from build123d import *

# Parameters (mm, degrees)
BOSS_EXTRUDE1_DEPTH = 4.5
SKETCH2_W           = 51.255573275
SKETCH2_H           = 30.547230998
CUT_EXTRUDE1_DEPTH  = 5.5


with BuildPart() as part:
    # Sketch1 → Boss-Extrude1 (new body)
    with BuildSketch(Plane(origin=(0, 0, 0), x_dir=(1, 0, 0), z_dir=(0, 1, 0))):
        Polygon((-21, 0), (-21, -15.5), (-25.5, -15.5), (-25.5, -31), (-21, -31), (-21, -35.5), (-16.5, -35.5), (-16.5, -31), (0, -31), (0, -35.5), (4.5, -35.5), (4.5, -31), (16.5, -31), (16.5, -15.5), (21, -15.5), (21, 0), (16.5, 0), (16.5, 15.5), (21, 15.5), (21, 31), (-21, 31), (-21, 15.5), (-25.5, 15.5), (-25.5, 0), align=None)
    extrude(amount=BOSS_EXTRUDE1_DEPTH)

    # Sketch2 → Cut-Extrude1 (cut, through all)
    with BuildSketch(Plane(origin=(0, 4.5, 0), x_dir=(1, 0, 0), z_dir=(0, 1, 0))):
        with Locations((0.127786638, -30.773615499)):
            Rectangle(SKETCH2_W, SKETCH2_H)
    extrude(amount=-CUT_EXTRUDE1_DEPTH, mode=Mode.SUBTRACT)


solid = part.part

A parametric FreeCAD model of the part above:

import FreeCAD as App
import Part
import Sketcher

doc = App.newDocument("Part")
params = doc.addObject("Spreadsheet::Sheet", "Params")
for row, (alias, value) in enumerate([
    ("sketch1_width", "12 mm"),
    ("sketch1_width2", "42 mm"),
    ("sketch1_height", "15.5 mm"),
    ("pad1_length", "4.5 mm"),
], start=1):
    params.set(f"A{row}", alias)
    params.set(f"B{row}", "=" + value)
    params.setAlias(f"B{row}", alias)

body = doc.addObject("PartDesign::Body", "Body")

# Sketch on XZ plane
sketch1 = doc.addObject("Sketcher::SketchObject", "Sketch")
body.addObject(sketch1)
sketch1.AttachmentSupport = (doc.XZ_Plane, [""])
sketch1.MapMode = "FlatFace"
sketch1.addGeometry([
    Part.LineSegment(App.Vector(-21, 0, 0), App.Vector(-21, 15.5, 0)),  # 0
    Part.LineSegment(App.Vector(-21, 15.5, 0), App.Vector(-25.5, 15.5, 0)),  # 1
    Part.LineSegment(App.Vector(-25.5, 15.5, 0), App.Vector(-25.5, 31, 0)),  # 2
    Part.LineSegment(App.Vector(-25.5, 31, 0), App.Vector(-21, 31, 0)),  # 3
    Part.LineSegment(App.Vector(-21, 31, 0), App.Vector(-21, 35.5, 0)),  # 4
    Part.LineSegment(App.Vector(-21, 35.5, 0), App.Vector(-16.5, 35.5, 0)),  # 5
    Part.LineSegment(App.Vector(-16.5, 35.5, 0), App.Vector(-16.5, 31, 0)),  # 6
    Part.LineSegment(App.Vector(-16.5, 31, 0), App.Vector(0, 31, 0)),  # 7
    Part.LineSegment(App.Vector(0, 31, 0), App.Vector(0, 35.5, 0)),  # 8
    Part.LineSegment(App.Vector(0, 35.5, 0), App.Vector(4.5, 35.5, 0)),  # 9
    Part.LineSegment(App.Vector(4.5, 35.5, 0), App.Vector(4.5, 31, 0)),  # 10
    Part.LineSegment(App.Vector(4.5, 31, 0), App.Vector(16.5, 31, 0)),  # 11
    Part.LineSegment(App.Vector(16.5, 31, 0), App.Vector(16.5, 15.5, 0)),  # 12
    Part.LineSegment(App.Vector(16.5, 15.5, 0), App.Vector(21, 15.5, 0)),  # 13
    Part.LineSegment(App.Vector(21, 15.5, 0), App.Vector(21, 0, 0)),  # 14
    Part.LineSegment(App.Vector(21, 0, 0), App.Vector(16.5, 0, 0)),  # 15
    Part.LineSegment(App.Vector(16.5, 0, 0), App.Vector(16.5, -15.5, 0)),  # 16
    Part.LineSegment(App.Vector(16.5, -15.5, 0), App.Vector(21, -15.5, 0)),  # 17
    Part.LineSegment(App.Vector(21, -15.5, 0), App.Vector(21, -31, 0)),  # 18
    Part.LineSegment(App.Vector(21, -31, 0), App.Vector(-21, -31, 0)),  # 19
    Part.LineSegment(App.Vector(-21, -31, 0), App.Vector(-21, -15.5, 0)),  # 20
    Part.LineSegment(App.Vector(-21, -15.5, 0), App.Vector(-25.5, -15.5, 0)),  # 21
    Part.LineSegment(App.Vector(-25.5, -15.5, 0), App.Vector(-25.5, 0, 0)),  # 22
    Part.LineSegment(App.Vector(-25.5, 0, 0), App.Vector(-21, 0, 0)),  # 23
], False)
sketch1.addConstraint([
    Sketcher.Constraint("Coincident", 0, 2, 1, 1),
    Sketcher.Constraint("Coincident", 1, 2, 2, 1),
    Sketcher.Constraint("Coincident", 2, 2, 3, 1),
    Sketcher.Constraint("Coincident", 3, 2, 4, 1),
    Sketcher.Constraint("Coincident", 4, 2, 5, 1),
    Sketcher.Constraint("Coincident", 5, 2, 6, 1),
    Sketcher.Constraint("Coincident", 6, 2, 7, 1),
    Sketcher.Constraint("Coincident", 7, 2, 8, 1),
    Sketcher.Constraint("Coincident", 8, 2, 9, 1),
    Sketcher.Constraint("Coincident", 9, 2, 10, 1),
    Sketcher.Constraint("Coincident", 10, 2, 11, 1),
    Sketcher.Constraint("Coincident", 11, 2, 12, 1),
    Sketcher.Constraint("Coincident", 12, 2, 13, 1),
    Sketcher.Constraint("Coincident", 13, 2, 14, 1),
    Sketcher.Constraint("Coincident", 14, 2, 15, 1),
    Sketcher.Constraint("Coincident", 15, 2, 16, 1),
    Sketcher.Constraint("Coincident", 16, 2, 17, 1),
    Sketcher.Constraint("Coincident", 17, 2, 18, 1),
    Sketcher.Constraint("Coincident", 18, 2, 19, 1),
    Sketcher.Constraint("Coincident", 19, 2, 20, 1),
    Sketcher.Constraint("Coincident", 20, 2, 21, 1),
    Sketcher.Constraint("Coincident", 21, 2, 22, 1),
    Sketcher.Constraint("Coincident", 22, 2, 23, 1),
    Sketcher.Constraint("Coincident", 23, 2, 0, 1),
    Sketcher.Constraint("Vertical", 0),
    Sketcher.Constraint("Horizontal", 1),
    Sketcher.Constraint("Vertical", 2),
    Sketcher.Constraint("Horizontal", 3),
    Sketcher.Constraint("Vertical", 4),
    Sketcher.Constraint("Horizontal", 5),
    Sketcher.Constraint("Vertical", 6),
    Sketcher.Constraint("Horizontal", 7),
    Sketcher.Constraint("Vertical", 8),
    Sketcher.Constraint("Horizontal", 9),
    Sketcher.Constraint("Vertical", 10),
    Sketcher.Constraint("Horizontal", 11),
    Sketcher.Constraint("Vertical", 12),
    Sketcher.Constraint("Horizontal", 13),
    Sketcher.Constraint("Vertical", 14),
    Sketcher.Constraint("Horizontal", 15),
    Sketcher.Constraint("Vertical", 16),
    Sketcher.Constraint("Horizontal", 17),
    Sketcher.Constraint("Vertical", 18),
    Sketcher.Constraint("Horizontal", 19),
    Sketcher.Constraint("Vertical", 20),
    Sketcher.Constraint("Horizontal", 21),
    Sketcher.Constraint("Vertical", 22),
    Sketcher.Constraint("Horizontal", 23),
    Sketcher.Constraint("Symmetric", 0, 2, 17, 2, -1, 1),
    Sketcher.Constraint("Symmetric", 3, 2, 18, 2, -1, 1),
    Sketcher.Constraint("Symmetric", 13, 2, 20, 2, -1, 1),
    Sketcher.Constraint("Symmetric", 14, 2, 23, 2, -1, 1),
    Sketcher.Constraint("Symmetric", 6, 2, 11, 2, -2),
    Sketcher.Constraint("Symmetric", 12, 2, 16, 2, -1),
    Sketcher.Constraint("PointOnObject", 7, 2, -2),
    Sketcher.Constraint("PointOnObject", 14, 2, -1),
    Sketcher.Constraint("Horizontal", 3, 2, 6, 2),
    Sketcher.Constraint("Horizontal", 5, 2, 8, 2),
    Sketcher.Constraint("Vertical", 2, 2, 21, 2),
    Sketcher.Constraint("Equal", 3, 5),
    Sketcher.Constraint("Equal", 5, 9),
    Sketcher.Constraint("Equal", 0, 2),
    Sketcher.Constraint("Equal", 23, 4),
    Sketcher.Constraint("DistanceX", 11, 1, 11, 2, 12.0),
    Sketcher.Constraint("DistanceX", 19, 2, 19, 1, 42.0),
    Sketcher.Constraint("DistanceY", 0, 1, 0, 2, 15.5),
])
sketch1.setExpression("Constraints[63]", "Params.sketch1_width")
sketch1.setExpression("Constraints[64]", "Params.sketch1_width2")
sketch1.setExpression("Constraints[65]", "Params.sketch1_height")
pad1 = doc.addObject("PartDesign::Pad", "Pad")
body.addObject(pad1)
pad1.Profile = sketch1
pad1.setExpression("Length", "Params.pad1_length")
pad1.Reversed = True

# Sketch on XZ plane
sketch2 = doc.addObject("Sketcher::SketchObject", "Sketch001")
body.addObject(sketch2)
sketch2.AttachmentSupport = (doc.XZ_Plane, [""])
sketch2.MapMode = "FlatFace"
sketch2.AttachmentOffset = App.Placement(App.Vector(0, 0, -4.5), App.Rotation())
sketch2.addGeometry([
    Part.LineSegment(App.Vector(-26, 16, 0), App.Vector(-26, 46, 0)),
    Part.LineSegment(App.Vector(-26, 46, 0), App.Vector(26, 46, 0)),
    Part.LineSegment(App.Vector(26, 46, 0), App.Vector(26, 16, 0)),
    Part.LineSegment(App.Vector(26, 16, 0), App.Vector(-26, 16, 0)),
], False)
sketch2.addConstraint([
    Sketcher.Constraint("Coincident", 0, 2, 1, 1),
    Sketcher.Constraint("Coincident", 1, 2, 2, 1),
    Sketcher.Constraint("Coincident", 2, 2, 3, 1),
    Sketcher.Constraint("Coincident", 3, 2, 0, 1),
    Sketcher.Constraint("Vertical", 0),
    Sketcher.Constraint("Horizontal", 1),
    Sketcher.Constraint("Vertical", 2),
    Sketcher.Constraint("Horizontal", 3),
    Sketcher.Constraint("DistanceX", 0, 2, -1, 1, 25.5),
    Sketcher.Constraint("DistanceY", -1, 1, 2, 2, 15.5),
    Sketcher.Constraint("DistanceY", 0, 1, 0, 2, 30.547231),
    Sketcher.Constraint("DistanceX", 1, 1, 1, 2, 51.255573),
])
pocket1 = doc.addObject("PartDesign::Pocket", "Pocket")
body.addObject(pocket1)
pocket1.Profile = sketch2
pocket1.Type = "ThroughAll"
pocket1.Reversed = True

doc.recompute()
